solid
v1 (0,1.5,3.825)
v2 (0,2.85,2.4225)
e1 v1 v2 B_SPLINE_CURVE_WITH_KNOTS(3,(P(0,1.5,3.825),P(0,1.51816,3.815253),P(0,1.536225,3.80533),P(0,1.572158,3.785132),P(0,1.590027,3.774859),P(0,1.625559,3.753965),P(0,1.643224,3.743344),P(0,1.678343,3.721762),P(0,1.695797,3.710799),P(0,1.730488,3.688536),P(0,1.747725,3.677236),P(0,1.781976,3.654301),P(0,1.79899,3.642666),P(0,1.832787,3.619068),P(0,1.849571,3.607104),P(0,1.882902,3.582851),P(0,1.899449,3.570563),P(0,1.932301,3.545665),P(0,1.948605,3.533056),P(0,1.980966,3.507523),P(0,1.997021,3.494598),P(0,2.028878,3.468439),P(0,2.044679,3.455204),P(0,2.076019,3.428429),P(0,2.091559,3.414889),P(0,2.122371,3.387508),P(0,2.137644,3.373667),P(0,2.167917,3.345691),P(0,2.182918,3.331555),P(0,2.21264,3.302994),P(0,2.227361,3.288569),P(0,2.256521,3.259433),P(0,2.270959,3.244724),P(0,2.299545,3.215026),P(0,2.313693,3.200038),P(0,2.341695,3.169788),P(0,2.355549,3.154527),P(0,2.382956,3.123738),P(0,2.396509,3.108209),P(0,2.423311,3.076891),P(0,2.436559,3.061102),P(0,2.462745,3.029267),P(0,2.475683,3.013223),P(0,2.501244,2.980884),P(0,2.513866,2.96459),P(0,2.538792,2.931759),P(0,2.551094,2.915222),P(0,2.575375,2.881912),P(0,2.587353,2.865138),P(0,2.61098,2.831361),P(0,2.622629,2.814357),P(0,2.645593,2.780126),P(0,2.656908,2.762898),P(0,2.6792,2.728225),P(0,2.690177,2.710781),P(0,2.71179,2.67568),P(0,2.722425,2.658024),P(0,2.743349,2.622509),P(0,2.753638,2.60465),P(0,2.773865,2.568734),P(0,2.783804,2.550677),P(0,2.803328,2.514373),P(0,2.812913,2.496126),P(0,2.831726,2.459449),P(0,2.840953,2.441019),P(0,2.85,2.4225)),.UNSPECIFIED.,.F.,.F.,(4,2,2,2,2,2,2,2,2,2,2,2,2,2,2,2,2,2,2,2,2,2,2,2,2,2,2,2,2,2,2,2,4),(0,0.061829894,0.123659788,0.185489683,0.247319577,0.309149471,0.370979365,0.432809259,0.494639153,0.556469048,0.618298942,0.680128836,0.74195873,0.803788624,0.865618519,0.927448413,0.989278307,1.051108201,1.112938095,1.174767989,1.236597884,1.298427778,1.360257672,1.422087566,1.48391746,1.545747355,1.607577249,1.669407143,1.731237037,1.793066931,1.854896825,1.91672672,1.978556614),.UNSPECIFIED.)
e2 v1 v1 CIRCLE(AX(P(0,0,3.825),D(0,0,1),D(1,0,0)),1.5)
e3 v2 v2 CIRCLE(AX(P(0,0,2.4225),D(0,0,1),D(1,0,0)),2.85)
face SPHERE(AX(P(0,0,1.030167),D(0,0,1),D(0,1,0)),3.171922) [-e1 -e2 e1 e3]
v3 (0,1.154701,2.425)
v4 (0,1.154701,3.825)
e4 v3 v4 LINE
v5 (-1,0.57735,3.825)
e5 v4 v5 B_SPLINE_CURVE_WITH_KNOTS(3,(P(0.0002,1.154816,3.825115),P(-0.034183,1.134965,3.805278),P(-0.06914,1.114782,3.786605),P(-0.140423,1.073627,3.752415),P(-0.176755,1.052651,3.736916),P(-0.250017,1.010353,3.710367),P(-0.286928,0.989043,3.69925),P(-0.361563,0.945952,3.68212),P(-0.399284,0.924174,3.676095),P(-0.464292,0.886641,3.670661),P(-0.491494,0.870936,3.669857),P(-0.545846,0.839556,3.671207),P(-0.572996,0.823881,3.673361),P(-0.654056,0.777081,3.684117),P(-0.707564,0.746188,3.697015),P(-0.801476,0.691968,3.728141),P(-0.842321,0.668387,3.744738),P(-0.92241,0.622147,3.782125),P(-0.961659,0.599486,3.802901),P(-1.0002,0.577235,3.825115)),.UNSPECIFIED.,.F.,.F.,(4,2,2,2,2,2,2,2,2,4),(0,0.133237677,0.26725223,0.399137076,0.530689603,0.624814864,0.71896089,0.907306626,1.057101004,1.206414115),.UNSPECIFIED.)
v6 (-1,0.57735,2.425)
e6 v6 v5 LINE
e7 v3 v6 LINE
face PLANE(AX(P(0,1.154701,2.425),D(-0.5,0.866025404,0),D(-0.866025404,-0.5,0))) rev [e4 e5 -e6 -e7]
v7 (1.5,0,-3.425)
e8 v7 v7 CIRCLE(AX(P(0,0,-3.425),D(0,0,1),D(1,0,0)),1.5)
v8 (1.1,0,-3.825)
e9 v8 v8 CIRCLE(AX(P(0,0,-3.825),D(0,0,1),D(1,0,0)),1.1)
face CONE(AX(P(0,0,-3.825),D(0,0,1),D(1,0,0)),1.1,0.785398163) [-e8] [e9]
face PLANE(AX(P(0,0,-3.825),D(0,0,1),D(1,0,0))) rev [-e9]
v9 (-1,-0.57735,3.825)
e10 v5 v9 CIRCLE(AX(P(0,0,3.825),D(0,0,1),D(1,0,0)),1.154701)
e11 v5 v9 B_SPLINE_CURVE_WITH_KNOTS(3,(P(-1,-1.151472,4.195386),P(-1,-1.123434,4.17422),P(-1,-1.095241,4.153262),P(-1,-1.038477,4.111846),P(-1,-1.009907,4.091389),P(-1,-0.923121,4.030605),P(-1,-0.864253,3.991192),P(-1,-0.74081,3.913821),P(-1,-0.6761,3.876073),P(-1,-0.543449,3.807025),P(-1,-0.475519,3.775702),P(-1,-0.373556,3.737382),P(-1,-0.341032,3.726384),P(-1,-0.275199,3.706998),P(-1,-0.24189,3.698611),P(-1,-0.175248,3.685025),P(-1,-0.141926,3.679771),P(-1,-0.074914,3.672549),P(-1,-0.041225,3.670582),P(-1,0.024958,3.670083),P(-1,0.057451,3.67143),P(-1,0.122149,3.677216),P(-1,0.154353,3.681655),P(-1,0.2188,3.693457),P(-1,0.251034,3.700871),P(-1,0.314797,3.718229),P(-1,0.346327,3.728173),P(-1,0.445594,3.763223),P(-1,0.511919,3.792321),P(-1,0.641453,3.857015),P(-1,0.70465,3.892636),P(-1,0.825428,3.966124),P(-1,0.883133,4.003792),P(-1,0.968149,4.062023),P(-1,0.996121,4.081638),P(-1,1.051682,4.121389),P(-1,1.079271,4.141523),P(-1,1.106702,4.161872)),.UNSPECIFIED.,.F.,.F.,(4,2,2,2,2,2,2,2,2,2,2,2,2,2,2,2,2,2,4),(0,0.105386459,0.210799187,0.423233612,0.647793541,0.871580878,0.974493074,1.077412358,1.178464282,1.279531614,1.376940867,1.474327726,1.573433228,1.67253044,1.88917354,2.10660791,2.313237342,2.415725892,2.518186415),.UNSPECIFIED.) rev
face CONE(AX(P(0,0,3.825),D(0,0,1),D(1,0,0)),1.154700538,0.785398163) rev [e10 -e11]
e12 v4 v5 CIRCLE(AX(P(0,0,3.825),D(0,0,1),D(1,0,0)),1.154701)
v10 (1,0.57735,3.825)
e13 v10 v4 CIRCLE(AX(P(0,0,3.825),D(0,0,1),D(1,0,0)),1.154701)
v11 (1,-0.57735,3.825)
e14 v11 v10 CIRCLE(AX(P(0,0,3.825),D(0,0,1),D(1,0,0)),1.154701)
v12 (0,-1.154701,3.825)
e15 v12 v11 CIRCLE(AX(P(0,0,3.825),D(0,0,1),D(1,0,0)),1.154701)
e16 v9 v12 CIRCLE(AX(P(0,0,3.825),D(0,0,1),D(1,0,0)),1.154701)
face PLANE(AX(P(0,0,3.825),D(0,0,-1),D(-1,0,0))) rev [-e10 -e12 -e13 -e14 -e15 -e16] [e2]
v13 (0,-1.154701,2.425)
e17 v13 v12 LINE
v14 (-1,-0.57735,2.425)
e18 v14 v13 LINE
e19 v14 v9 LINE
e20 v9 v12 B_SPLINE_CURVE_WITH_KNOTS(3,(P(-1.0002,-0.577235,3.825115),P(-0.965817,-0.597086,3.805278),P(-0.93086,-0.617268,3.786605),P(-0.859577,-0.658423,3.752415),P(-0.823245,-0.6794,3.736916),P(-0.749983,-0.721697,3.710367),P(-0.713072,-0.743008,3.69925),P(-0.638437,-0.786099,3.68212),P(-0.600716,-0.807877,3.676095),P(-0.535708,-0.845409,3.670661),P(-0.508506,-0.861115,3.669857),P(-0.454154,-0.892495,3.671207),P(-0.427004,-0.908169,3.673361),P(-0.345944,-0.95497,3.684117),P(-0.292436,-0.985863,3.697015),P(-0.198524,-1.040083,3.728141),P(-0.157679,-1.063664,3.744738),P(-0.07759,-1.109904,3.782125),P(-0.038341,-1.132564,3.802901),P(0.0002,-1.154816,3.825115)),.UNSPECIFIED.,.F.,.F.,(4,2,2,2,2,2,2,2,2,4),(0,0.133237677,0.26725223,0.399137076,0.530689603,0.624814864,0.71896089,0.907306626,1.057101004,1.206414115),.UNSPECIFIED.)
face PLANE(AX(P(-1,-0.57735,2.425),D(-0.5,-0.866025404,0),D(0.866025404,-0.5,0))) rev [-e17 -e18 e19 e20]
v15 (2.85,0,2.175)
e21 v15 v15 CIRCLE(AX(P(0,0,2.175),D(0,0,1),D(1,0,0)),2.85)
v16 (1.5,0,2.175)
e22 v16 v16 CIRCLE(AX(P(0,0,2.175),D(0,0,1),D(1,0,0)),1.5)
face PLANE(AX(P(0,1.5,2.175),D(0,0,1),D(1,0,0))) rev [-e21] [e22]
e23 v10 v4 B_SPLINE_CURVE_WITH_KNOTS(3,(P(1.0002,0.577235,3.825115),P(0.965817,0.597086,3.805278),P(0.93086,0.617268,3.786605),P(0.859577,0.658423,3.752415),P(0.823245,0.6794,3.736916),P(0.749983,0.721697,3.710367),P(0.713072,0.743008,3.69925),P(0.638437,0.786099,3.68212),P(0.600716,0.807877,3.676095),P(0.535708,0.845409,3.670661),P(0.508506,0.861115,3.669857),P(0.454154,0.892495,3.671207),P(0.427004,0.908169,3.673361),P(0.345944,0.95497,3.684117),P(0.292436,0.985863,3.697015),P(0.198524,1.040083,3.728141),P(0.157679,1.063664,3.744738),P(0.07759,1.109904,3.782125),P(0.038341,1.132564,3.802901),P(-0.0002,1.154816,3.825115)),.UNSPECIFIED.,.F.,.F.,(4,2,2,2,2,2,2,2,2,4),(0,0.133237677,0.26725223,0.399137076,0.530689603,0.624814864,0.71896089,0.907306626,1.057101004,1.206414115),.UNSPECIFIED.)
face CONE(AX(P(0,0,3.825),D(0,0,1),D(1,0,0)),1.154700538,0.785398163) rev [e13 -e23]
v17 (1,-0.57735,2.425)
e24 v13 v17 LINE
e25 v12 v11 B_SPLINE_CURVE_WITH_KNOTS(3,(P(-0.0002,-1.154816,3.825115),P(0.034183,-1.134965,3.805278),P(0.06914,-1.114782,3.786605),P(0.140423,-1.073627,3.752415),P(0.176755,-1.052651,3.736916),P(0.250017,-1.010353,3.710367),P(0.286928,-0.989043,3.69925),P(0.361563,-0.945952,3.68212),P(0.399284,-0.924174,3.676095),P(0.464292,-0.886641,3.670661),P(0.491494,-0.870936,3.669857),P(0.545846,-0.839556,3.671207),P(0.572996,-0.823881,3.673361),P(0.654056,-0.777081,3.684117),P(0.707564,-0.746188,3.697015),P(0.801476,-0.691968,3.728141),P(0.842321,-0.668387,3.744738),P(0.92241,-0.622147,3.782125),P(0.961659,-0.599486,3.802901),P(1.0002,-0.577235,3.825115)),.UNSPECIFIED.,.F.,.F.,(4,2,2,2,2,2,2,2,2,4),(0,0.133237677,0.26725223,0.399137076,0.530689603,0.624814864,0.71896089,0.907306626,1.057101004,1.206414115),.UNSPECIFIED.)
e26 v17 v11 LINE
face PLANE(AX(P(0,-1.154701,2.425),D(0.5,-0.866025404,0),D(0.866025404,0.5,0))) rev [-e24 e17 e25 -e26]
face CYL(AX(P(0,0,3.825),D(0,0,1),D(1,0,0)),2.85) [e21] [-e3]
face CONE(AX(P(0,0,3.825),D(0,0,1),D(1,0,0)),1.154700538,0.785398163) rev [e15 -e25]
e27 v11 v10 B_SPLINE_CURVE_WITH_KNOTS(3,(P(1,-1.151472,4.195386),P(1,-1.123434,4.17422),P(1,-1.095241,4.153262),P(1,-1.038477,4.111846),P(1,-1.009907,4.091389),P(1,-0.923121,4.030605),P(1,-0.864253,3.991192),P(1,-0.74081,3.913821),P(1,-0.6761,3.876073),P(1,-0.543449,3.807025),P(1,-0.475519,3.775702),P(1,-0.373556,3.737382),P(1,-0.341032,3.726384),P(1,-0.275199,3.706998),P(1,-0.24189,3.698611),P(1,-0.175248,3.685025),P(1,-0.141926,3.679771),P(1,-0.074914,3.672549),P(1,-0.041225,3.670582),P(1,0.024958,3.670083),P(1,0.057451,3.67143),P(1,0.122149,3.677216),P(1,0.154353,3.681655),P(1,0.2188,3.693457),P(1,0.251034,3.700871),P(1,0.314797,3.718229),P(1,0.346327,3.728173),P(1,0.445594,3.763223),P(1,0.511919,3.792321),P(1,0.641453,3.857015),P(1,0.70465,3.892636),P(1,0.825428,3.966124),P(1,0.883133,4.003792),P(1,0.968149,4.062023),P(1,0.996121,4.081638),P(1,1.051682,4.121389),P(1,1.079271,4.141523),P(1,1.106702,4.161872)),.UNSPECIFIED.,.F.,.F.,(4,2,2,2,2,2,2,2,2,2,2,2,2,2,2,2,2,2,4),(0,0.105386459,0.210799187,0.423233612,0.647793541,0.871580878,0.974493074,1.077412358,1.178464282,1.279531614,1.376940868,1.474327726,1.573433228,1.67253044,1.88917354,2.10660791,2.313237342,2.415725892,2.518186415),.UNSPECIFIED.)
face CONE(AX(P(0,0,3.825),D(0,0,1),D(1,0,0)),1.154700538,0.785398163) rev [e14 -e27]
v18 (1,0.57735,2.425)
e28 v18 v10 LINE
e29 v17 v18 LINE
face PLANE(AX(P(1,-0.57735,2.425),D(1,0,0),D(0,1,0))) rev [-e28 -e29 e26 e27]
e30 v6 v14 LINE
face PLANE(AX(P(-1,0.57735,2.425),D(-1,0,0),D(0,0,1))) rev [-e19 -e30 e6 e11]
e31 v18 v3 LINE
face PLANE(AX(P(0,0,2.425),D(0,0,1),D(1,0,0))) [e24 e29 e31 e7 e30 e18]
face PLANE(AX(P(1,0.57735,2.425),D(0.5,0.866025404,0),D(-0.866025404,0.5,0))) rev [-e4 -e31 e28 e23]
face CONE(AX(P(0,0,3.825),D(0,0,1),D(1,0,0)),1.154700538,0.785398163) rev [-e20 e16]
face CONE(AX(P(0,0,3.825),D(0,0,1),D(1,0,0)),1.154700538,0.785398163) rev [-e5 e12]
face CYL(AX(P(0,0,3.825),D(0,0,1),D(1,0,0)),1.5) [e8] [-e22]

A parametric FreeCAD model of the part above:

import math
import FreeCAD as App
import Part
import Sketcher

V = App.Vector
Q = App.Units.Quantity

doc = App.newDocument("Part")
body = doc.addObject("PartDesign::Body", "Body")

# Sketch on YZ plane
sketch1 = body.newObject("Sketcher::SketchObject", "Sketch")
sketch1.AttachmentSupport = (doc.getObject("YZ_Plane"), [""])
sketch1.MapMode = "FlatFace"
sketch1.addGeometry([
    Part.LineSegment(V(0, 3.83, 0), V(0, -3.83, 0)),  # 0
    Part.LineSegment(V(0, -3.83, 0), V(1.1, -3.83, 0)),  # 1
    Part.LineSegment(V(1.1, -3.83, 0), V(1.5, -3.42, 0)),  # 2
    Part.LineSegment(V(1.5, -3.42, 0), V(1.5, 2.17, 0)),  # 3
    Part.LineSegment(V(1.5, 2.17, 0), V(2.85, 2.17, 0)),  # 4
    Part.LineSegment(V(2.85, 2.17, 0), V(2.85, 2.42, 0)),  # 5
    Part.ArcOfCircle(Part.Circle(V(0, 1.03, 0), V(0, 0, 1), 3.17), math.radians(26), math.radians(62)),  # 6
    Part.LineSegment(V(1.5, 3.83, 0), V(0, 3.83, 0)),  # 7
], False)
sketch1.addConstraint([
    Sketcher.Constraint("Coincident", 0, 2, 1, 1),
    Sketcher.Constraint("Coincident", 1, 2, 2, 1),
    Sketcher.Constraint("Coincident", 2, 2, 3, 1),
    Sketcher.Constraint("Coincident", 3, 2, 4, 1),
    Sketcher.Constraint("Coincident", 4, 2, 5, 1),
    Sketcher.Constraint("Coincident", 5, 2, 6, 1),
    Sketcher.Constraint("Coincident", 6, 2, 7, 1),
    Sketcher.Constraint("Coincident", 7, 2, 0, 1),
    Sketcher.Constraint("Vertical", 0),
    Sketcher.Constraint("Horizontal", 1),
    Sketcher.Constraint("Vertical", 3),
    Sketcher.Constraint("Horizontal", 4),
    Sketcher.Constraint("Vertical", 5),
    Sketcher.Constraint("Horizontal", 7),
    Sketcher.Constraint("Symmetric", 0, 2, 7, 2, -1, 1),
    Sketcher.Constraint("PointOnObject", 6, 3, -2),
    Sketcher.Constraint("Vertical", 3, 2, 6, 2),
    Sketcher.Constraint("Angle", 2, Q("45 deg")),
    Sketcher.Constraint("DistanceX", 1, 1, 1, 2, Q("1.1 mm")),
    Sketcher.Constraint("DistanceX", 7, 2, 7, 1, Q("1.5 mm")),
    Sketcher.Constraint("DistanceY", 3, 1, 3, 2, Q("5.6 mm")),
    Sketcher.Constraint("DistanceX", 4, 1, 4, 2, Q("1.35 mm")),
    Sketcher.Constraint("DistanceY", 0, 2, 0, 1, Q("7.65 mm")),
    Sketcher.Constraint("DistanceY", 5, 1, 5, 2, Q("0.2475 mm")),
])
revolution = body.newObject("PartDesign::Revolution", "Revolution")
revolution.Profile = sketch1
revolution.ReferenceAxis = (sketch1, ["V_Axis"])
revolution.Angle = 360

# Sketch on XY plane
sketch2 = body.newObject("Sketcher::SketchObject", "Sketch001")
sketch2.AttachmentSupport = (doc.getObject("XY_Plane"), [""])
sketch2.MapMode = "FlatFace"
sketch2.AttachmentOffset = App.Placement(V(0, 0, 3.825), App.Rotation())
sketch2.addGeometry([
    Part.LineSegment(V(0, 1.2, 0), V(-1, 0.6, 0)),  # 0
    Part.LineSegment(V(-1, 0.6, 0), V(-1, -0.6, 0)),  # 1
    Part.LineSegment(V(-1, -0.6, 0), V(0, -1.2, 0)),  # 2
    Part.LineSegment(V(0, -1.2, 0), V(1, -0.6, 0)),  # 3
    Part.LineSegment(V(1, -0.6, 0), V(1, 0.6, 0)),  # 4
    Part.LineSegment(V(1, 0.6, 0), V(0, 1.2, 0)),  # 5
], False)
sketch2.addConstraint([
    Sketcher.Constraint("Coincident", 0, 2, 1, 1),
    Sketcher.Constraint("Coincident", 1, 2, 2, 1),
    Sketcher.Constraint("Coincident", 2, 2, 3, 1),
    Sketcher.Constraint("Coincident", 3, 2, 4, 1),
    Sketcher.Constraint("Coincident", 4, 2, 5, 1),
    Sketcher.Constraint("Coincident", 5, 2, 0, 1),
    Sketcher.Constraint("Vertical", 1),
    Sketcher.Constraint("Vertical", 4),
    Sketcher.Constraint("Symmetric", 0, 2, 3, 2, -1, 1),
    Sketcher.Constraint("Symmetric", 2, 2, 5, 2, -1, 1),
    Sketcher.Constraint("PointOnObject", 2, 2, -2),
    Sketcher.Constraint("Parallel", 2, 5),
    Sketcher.Constraint("Horizontal", 1, 2, 3, 2),
    Sketcher.Constraint("Angle", 0, Q("-150 deg")),
    Sketcher.Constraint("DistanceX", 0, 2, -1, 1, Q("1 mm")),
    Sketcher.Constraint("DistanceY", 1, 2, 1, 1, Q("1.154701 mm")),
])
pocket1 = body.newObject("PartDesign::Pocket", "Pocket")
pocket1.Profile = sketch2
pocket1.Length = 1.4

# Sketch on YZ plane
sketch3 = body.newObject("Sketcher::SketchObject", "Sketch002")
sketch3.AttachmentSupport = (doc.getObject("YZ_Plane"), [""])
sketch3.MapMode = "FlatFace"
sketch3.addGeometry([
    Part.LineSegment(V(0, 3.8, 0), V(-1.2, 3.8, 0)),
    Part.LineSegment(V(-1.2, 3.8, 0), V(0, 2.7, 0)),
    Part.LineSegment(V(0, 2.7, 0), V(0, 3.8, 0)),
], False)
sketch3.addConstraint([
    Sketcher.Constraint("Coincident", 0, 2, 1, 1),
    Sketcher.Constraint("Coincident", 1, 2, 2, 1),
    Sketcher.Constraint("Coincident", 2, 2, 0, 1),
    Sketcher.Constraint("Horizontal", 0),
    Sketcher.Constraint("Vertical", 2),
    Sketcher.Constraint("PointOnObject", 1, 2, -2),
    Sketcher.Constraint("Equal", 0, 2),
    Sketcher.Constraint("DistanceX", 0, 2, 0, 1, Q("1.154701 mm")),
    Sketcher.Constraint("DistanceY", -1, 1, 0, 2, Q("3.825 mm")),
])
groove = body.newObject("PartDesign::Groove", "Groove")
groove.Profile = sketch3
groove.ReferenceAxis = (sketch3, ["V_Axis"])
groove.Angle = 360

doc.recompute()
